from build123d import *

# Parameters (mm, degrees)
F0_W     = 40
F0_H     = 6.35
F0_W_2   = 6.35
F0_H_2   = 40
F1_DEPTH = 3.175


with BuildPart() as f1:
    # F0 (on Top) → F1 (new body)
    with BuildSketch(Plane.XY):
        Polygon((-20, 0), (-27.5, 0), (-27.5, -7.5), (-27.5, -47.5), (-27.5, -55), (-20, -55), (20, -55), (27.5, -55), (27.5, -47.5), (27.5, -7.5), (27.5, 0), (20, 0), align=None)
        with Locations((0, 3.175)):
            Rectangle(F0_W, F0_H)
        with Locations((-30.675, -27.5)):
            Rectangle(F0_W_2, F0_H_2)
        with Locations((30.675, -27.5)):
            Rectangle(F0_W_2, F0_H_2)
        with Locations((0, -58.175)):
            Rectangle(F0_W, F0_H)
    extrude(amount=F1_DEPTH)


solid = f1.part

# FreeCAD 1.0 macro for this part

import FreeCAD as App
import Part
import Sketcher

doc = App.newDocument("Part")
body = doc.addObject("PartDesign::Body", "Body")

# Sketch on XY plane
sketch1 = body.newObject("Sketcher::SketchObject", "Sketch")
sketch1.AttachmentSupport = (doc.getObject("XY_Plane"), [""])
sketch1.MapMode = "FlatFace"
sketch1.addGeometry([
    Part.LineSegment(App.Vector(-28, 0, 0), App.Vector(-28, -8, 0)),  # 0
    Part.LineSegment(App.Vector(-28, -8, 0), App.Vector(-34, -8, 0)),  # 1
    Part.LineSegment(App.Vector(-34, -8, 0), App.Vector(-34, -48, 0)),  # 2
    Part.LineSegment(App.Vector(-34, -48, 0), App.Vector(-28, -48, 0)),  # 3
    Part.LineSegment(App.Vector(-28, -48, 0), App.Vector(-28, -55, 0)),  # 4
    Part.LineSegment(App.Vector(-28, -55, 0), App.Vector(-20, -55, 0)),  # 5
    Part.LineSegment(App.Vector(-20, -55, 0), App.Vector(-20, -61, 0)),  # 6
    Part.LineSegment(App.Vector(-20, -61, 0), App.Vector(20, -61, 0)),  # 7
    Part.LineSegment(App.Vector(20, -61, 0), App.Vector(20, -55, 0)),  # 8
    Part.LineSegment(App.Vector(20, -55, 0), App.Vector(28, -55, 0)),  # 9
    Part.LineSegment(App.Vector(28, -55, 0), App.Vector(28, -48, 0)),  # 10
    Part.LineSegment(App.Vector(28, -48, 0), App.Vector(34, -48, 0)),  # 11
    Part.LineSegment(App.Vector(34, -48, 0), App.Vector(34, -8, 0)),  # 12
    Part.LineSegment(App.Vector(34, -8, 0), App.Vector(28, -8, 0)),  # 13
    Part.LineSegment(App.Vector(28, -8, 0), App.Vector(28, 0, 0)),  # 14
    Part.LineSegment(App.Vector(28, 0, 0), App.Vector(20, 0, 0)),  # 15
    Part.LineSegment(App.Vector(20, 0, 0), App.Vector(20, 6, 0)),  # 16
    Part.LineSegment(App.Vector(20, 6, 0), App.Vector(-20, 6, 0)),  # 17
    Part.LineSegment(App.Vector(-20, 6, 0), App.Vector(-20, 0, 0)),  # 18
    Part.LineSegment(App.Vector(-20, 0, 0), App.Vector(-28, 0, 0)),  # 19
], False)
sketch1.addConstraint([
    Sketcher.Constraint("Coincident", 0, 2, 1, 1),
    Sketcher.Constraint("Coincident", 1, 2, 2, 1),
    Sketcher.Constraint("Coincident", 2, 2, 3, 1),
    Sketcher.Constraint("Coincident", 3, 2, 4, 1),
    Sketcher.Constraint("Coincident", 4, 2, 5, 1),
    Sketcher.Constraint("Coincident", 5, 2, 6, 1),
    Sketcher.Constraint("Coincident", 6, 2, 7, 1),
    Sketcher.Constraint("Coincident", 7, 2, 8, 1),
    Sketcher.Constraint("Coincident", 8, 2, 9, 1),
    Sketcher.Constraint("Coincident", 9, 2, 10, 1),
    Sketcher.Constraint("Coincident", 10, 2, 11, 1),
    Sketcher.Constraint("Coincident", 11, 2, 12, 1),
    Sketcher.Constraint("Coincident", 12, 2, 13, 1),
    Sketcher.Constraint("Coincident", 13, 2, 14, 1),
    Sketcher.Constraint("Coincident", 14, 2, 15, 1),
    Sketcher.Constraint("Coincident", 15, 2, 16, 1),
    Sketcher.Constraint("Coincident", 16, 2, 17, 1),
    Sketcher.Constraint("Coincident", 17, 2, 18, 1),
    Sketcher.Constraint("Coincident", 18, 2, 19, 1),
    Sketcher.Constraint("Coincident", 19, 2, 0, 1),
    Sketcher.Constraint("Vertical", 0),
    Sketcher.Constraint("Horizontal", 1),
    Sketcher.Constraint("Vertical", 2),
    Sketcher.Constraint("Horizontal", 3),
    Sketcher.Constraint("Vertical", 4),
    Sketcher.Constraint("Horizontal", 5),
    Sketcher.Constraint("Vertical", 6),
    Sketcher.Constraint("Horizontal", 7),
    Sketcher.Constraint("Vertical", 8),
    Sketcher.Constraint("Horizontal", 9),
    Sketcher.Constraint("Vertical", 10),
    Sketcher.Constraint("Horizontal", 11),
    Sketcher.Constraint("Vertical", 12),
    Sketcher.Constraint("Horizontal", 13),
    Sketcher.Constraint("Vertical", 14),
    Sketcher.Constraint("Horizontal", 15),
    Sketcher.Constraint("Vertical", 16),
    Sketcher.Constraint("Horizontal", 17),
    Sketcher.Constraint("Vertical", 18),
    Sketcher.Constraint("Horizontal", 19),
    Sketcher.Constraint("Symmetric", 15, 2, 18, 2, -1, 1),
    Sketcher.Constraint("Symmetric", 5, 2, 8, 2, -2),
    Sketcher.Constraint("Symmetric", 3, 2, 10, 2, -2),
    Sketcher.Constraint("Symmetric", 1, 2, 12, 2, -2),
    Sketcher.Constraint("Symmetric", 14, 2, 19, 2, -2),
    Sketcher.Constraint("Vertical", 0, 2, 3, 2),
    Sketcher.Constraint("Vertical", 8, 2, 15, 2),
    Sketcher.Constraint("Equal", 19, 0),
    Sketcher.Constraint("Equal", 17, 2),
    Sketcher.Constraint("Equal", 0, 4),
    Sketcher.Constraint("Equal", 13, 6),
    Sketcher.Constraint("Equal", 8, 16),
    Sketcher.Constraint("DistanceX", 7, 1, 7, 2, 40.0),
    Sketcher.Constraint("DistanceX", 5, 1, 5, 2, 7.5),
    Sketcher.Constraint("DistanceX", 1, 2, 1, 1, 6.35),
])
pad1 = body.newObject("PartDesign::Pad", "Pad")
pad1.Profile = sketch1
pad1.Length = 3.175

doc.recompute()
